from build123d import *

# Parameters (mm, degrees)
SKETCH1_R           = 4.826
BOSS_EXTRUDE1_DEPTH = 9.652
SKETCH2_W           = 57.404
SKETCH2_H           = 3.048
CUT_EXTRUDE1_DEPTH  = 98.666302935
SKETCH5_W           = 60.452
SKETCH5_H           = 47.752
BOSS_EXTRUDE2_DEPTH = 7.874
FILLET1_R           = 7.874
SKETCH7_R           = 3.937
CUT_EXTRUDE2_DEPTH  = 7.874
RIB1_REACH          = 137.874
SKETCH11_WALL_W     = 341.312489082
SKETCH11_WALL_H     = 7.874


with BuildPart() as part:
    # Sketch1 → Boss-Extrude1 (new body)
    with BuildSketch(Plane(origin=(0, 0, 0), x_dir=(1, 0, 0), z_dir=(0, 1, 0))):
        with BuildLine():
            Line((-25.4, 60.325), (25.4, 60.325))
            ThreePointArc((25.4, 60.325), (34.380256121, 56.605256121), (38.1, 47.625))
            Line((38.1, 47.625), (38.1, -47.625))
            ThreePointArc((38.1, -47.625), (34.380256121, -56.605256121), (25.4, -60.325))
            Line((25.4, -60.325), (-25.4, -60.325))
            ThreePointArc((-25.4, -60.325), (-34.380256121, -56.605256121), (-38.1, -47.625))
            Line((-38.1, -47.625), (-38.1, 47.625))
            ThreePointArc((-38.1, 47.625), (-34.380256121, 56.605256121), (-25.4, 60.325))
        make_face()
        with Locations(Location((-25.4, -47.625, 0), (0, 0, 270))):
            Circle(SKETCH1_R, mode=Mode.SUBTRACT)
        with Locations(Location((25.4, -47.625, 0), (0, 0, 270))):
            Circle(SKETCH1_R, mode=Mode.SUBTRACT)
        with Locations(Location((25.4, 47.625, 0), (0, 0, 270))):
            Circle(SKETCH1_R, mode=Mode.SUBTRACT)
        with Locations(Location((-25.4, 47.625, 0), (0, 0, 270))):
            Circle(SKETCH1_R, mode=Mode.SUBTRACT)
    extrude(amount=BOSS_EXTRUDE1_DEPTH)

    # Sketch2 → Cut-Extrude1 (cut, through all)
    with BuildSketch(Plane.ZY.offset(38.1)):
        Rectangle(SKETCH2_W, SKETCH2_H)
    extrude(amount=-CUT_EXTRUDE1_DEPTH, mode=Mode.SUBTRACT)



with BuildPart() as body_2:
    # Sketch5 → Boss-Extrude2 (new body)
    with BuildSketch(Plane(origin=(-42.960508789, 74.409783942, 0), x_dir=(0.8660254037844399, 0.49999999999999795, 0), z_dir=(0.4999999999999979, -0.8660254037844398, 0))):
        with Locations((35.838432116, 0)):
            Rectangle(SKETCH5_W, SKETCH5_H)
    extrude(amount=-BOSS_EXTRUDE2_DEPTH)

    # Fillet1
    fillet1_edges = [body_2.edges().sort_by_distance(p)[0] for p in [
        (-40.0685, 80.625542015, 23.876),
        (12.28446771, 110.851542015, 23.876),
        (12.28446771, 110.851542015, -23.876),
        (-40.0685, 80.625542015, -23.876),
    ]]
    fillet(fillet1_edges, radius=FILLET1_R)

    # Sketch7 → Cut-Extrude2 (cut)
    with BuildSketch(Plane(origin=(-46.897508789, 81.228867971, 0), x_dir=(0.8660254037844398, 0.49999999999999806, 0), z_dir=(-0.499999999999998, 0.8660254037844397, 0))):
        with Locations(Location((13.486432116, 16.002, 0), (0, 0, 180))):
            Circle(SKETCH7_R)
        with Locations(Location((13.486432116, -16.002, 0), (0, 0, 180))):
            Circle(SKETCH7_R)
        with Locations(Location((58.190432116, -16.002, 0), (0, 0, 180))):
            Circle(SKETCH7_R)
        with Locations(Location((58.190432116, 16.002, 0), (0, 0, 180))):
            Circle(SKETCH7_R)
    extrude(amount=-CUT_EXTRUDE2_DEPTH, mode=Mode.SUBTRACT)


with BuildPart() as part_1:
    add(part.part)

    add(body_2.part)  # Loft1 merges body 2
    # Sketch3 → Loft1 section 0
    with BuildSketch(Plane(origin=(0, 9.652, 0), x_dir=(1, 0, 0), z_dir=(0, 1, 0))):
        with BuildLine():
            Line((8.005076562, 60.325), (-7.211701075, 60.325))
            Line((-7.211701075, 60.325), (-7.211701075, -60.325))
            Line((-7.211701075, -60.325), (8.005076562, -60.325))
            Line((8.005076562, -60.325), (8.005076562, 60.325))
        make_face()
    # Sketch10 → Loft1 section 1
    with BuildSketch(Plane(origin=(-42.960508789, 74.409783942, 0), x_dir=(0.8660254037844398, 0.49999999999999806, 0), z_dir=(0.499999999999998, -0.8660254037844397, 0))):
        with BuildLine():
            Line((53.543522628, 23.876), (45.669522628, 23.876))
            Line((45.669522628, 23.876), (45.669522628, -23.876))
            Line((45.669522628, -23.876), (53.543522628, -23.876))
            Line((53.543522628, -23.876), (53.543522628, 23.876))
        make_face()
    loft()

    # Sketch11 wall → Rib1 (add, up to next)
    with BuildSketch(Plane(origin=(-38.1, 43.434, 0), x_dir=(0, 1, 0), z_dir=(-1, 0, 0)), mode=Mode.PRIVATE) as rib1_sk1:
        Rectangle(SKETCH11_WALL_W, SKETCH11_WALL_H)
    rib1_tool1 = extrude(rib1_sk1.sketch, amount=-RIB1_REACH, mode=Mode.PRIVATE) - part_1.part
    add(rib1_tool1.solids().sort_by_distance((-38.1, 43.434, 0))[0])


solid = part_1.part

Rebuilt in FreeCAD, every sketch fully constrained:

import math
import FreeCAD as App
import Part
import Sketcher
from FreeCAD import Vector
Q = App.Units.Quantity


def edges_at(feature, points):
    """Names of the edges that pass closest to the given points."""
    edges = feature.Shape.Edges
    near = lambda p: min(range(len(edges)), key=lambda i: edges[i].distToShape(Part.Vertex(*p))[0])
    return sorted({f"Edge{near(p) + 1}" for p in points})

doc = App.newDocument("Part")
body = doc.addObject("PartDesign::Body", "Body")

sketch1 = body.newObject("Sketcher::SketchObject", "Sketch")
sketch1.AttachmentSupport = (doc.getObject("XZ_Plane"), [""])
sketch1.MapMode = "FlatFace"
sketch1.addGeometry([
    Part.LineSegment(Vector(25.4, -60.3, 0), Vector(-25.4, -60.3, 0)),
    Part.ArcOfCircle(Part.Circle(Vector(-25.4, -47.6, 0), Vector(0, 0, 1), 12.7), math.radians(180), math.radians(270)),
    Part.LineSegment(Vector(-38.1, -47.6, 0), Vector(-38.1, 47.6, 0)),
    Part.ArcOfCircle(Part.Circle(Vector(-25.4, 47.6, 0), Vector(0, 0, 1), 12.7), math.radians(90), math.radians(180)),
    Part.LineSegment(Vector(-25.4, 60.3, 0), Vector(25.4, 60.3, 0)),
    Part.ArcOfCircle(Part.Circle(Vector(25.4, 47.6, 0), Vector(0, 0, 1), 12.7), math.radians(0), math.radians(90)),
    Part.LineSegment(Vector(38.1, 47.6, 0), Vector(38.1, -47.6, 0)),
    Part.ArcOfCircle(Part.Circle(Vector(25.4, -47.6, 0), Vector(0, 0, 1), 12.7), math.radians(-90), math.radians(0)),
    Part.Circle(Vector(25.4, 47.6, 0), Vector(0, 0, 1), 4.8),
    Part.Circle(Vector(-25.4, 47.6, 0), Vector(0, 0, 1), 4.8),
    Part.Circle(Vector(25.4, -47.6, 0), Vector(0, 0, 1), 4.8),
    Part.Circle(Vector(-25.4, -47.6, 0), Vector(0, 0, 1), 4.8),
], False)
sketch1.addConstraint([
    Sketcher.Constraint("Tangent", 0, 2, 1, 2),
    Sketcher.Constraint("Tangent", 1, 1, 2, 1),
    Sketcher.Constraint("Tangent", 2, 2, 3, 2),
    Sketcher.Constraint("Tangent", 3, 1, 4, 1),
    Sketcher.Constraint("Tangent", 4, 2, 5, 2),
    Sketcher.Constraint("Tangent", 5, 1, 6, 1),
    Sketcher.Constraint("Tangent", 6, 2, 7, 2),
    Sketcher.Constraint("Tangent", 7, 1, 0, 1),
    Sketcher.Constraint("Horizontal", 0),
    Sketcher.Constraint("Vertical", 2),
    Sketcher.Constraint("Horizontal", 4),
    Sketcher.Constraint("Vertical", 6),
    Sketcher.Constraint("Coincident", 8, 3, 5, 3),
    Sketcher.Constraint("Coincident", 9, 3, 3, 3),
    Sketcher.Constraint("Coincident", 10, 3, 7, 3),
    Sketcher.Constraint("Coincident", 11, 3, 1, 3),
    Sketcher.Constraint("Equal", 1, 3),
    Sketcher.Constraint("Equal", 3, 5),
    Sketcher.Constraint("Equal", 5, 7),
    Sketcher.Constraint("Equal", 8, 9),
    Sketcher.Constraint("Equal", 9, 10),
    Sketcher.Constraint("Equal", 10, 11),
    Sketcher.Constraint("Symmetric", 1, 3, 5, 3, -1, 1),
    Sketcher.Constraint("Radius", 1, Q("0.5 in")),
    Sketcher.Constraint("Diameter", 8, Q("0.38 in")),
    Sketcher.Constraint("DistanceX", 0, 2, 0, 1, Q("2 in")),
    Sketcher.Constraint("DistanceY", 2, 1, 2, 2, Q("3.75 in")),
])
pad1 = body.newObject("PartDesign::Pad", "Pad")
pad1.Profile = sketch1
pad1.Length = Q("0.38 in")
pad1.Reversed = True

sketch2 = body.newObject("Sketcher::SketchObject", "Sketch001")
sketch2.AttachmentSupport = (doc.getObject("YZ_Plane"), [""])
sketch2.MapMode = "FlatFace"
sketch2.AttachmentOffset = App.Placement(Vector(0, 0, -1.5 * 25.4), App.Rotation())
sketch2.addGeometry([
    Part.LineSegment(Vector(1.5, -28.7, 0), Vector(-1.5, -28.7, 0)),
    Part.LineSegment(Vector(-1.5, -28.7, 0), Vector(-1.5, 28.7, 0)),
    Part.LineSegment(Vector(-1.5, 28.7, 0), Vector(1.5, 28.7, 0)),
    Part.LineSegment(Vector(1.5, 28.7, 0), Vector(1.5, -28.7, 0)),
], False)
sketch2.addConstraint([
    Sketcher.Constraint("Coincident", 0, 2, 1, 1),
    Sketcher.Constraint("Coincident", 1, 2, 2, 1),
    Sketcher.Constraint("Coincident", 2, 2, 3, 1),
    Sketcher.Constraint("Coincident", 3, 2, 0, 1),
    Sketcher.Constraint("Horizontal", 0),
    Sketcher.Constraint("Vertical", 1),
    Sketcher.Constraint("Horizontal", 2),
    Sketcher.Constraint("Vertical", 3),
    Sketcher.Constraint("Symmetric", 0, 2, 2, 2, -1, 1),
    Sketcher.Constraint("DistanceX", 0, 2, 0, 1, Q("0.12 in")),
    Sketcher.Constraint("DistanceY", 1, 1, 1, 2, Q("2.26 in")),
])
pocket1 = body.newObject("PartDesign::Pocket", "Pocket")
pocket1.Profile = sketch2
pocket1.Type = "ThroughAll"
pocket1.Reversed = True
body2 = doc.addObject("PartDesign::Body", "Body001")

sketch3 = body2.newObject("Sketcher::SketchObject", "Sketch002")
sketch3.Placement = App.Placement(Vector(-42.960509, 74.409784, 0), App.Rotation(Vector(0.866025404, 0.5, 0), Vector(0, 0, 1), Vector(0.5, -0.866025404, 0), "ZXY"))
sketch3.addGeometry([
    Part.LineSegment(Vector(6, 24, 0), Vector(6, -24, 0)),
    Part.LineSegment(Vector(6, -24, 0), Vector(66, -24, 0)),
    Part.LineSegment(Vector(66, -24, 0), Vector(66, 24, 0)),
    Part.LineSegment(Vector(66, 24, 0), Vector(6, 24, 0)),
], False)
sketch3.addConstraint([
    Sketcher.Constraint("Coincident", 0, 2, 1, 1),
    Sketcher.Constraint("Coincident", 1, 2, 2, 1),
    Sketcher.Constraint("Coincident", 2, 2, 3, 1),
    Sketcher.Constraint("Coincident", 3, 2, 0, 1),
    Sketcher.Constraint("Vertical", 0),
    Sketcher.Constraint("Horizontal", 1),
    Sketcher.Constraint("Vertical", 2),
    Sketcher.Constraint("Horizontal", 3),
    Sketcher.Constraint("DistanceX", 1, 1, 1, 2, Q("2.38 in")),
    Sketcher.Constraint("DistanceY", 0, 2, 0, 1, Q("1.88 in")),
    Sketcher.Constraint("DistanceY", 0, 2, -1, 1, Q("0.94 in")),
    Sketcher.Constraint("DistanceX", -1, 1, 0, 2, 5.612432),
])
pad2 = body2.newObject("PartDesign::Pad", "Pad001")
pad2.Profile = sketch3
pad2.Length = Q("0.31 in")
pad2.Reversed = True
doc.recompute()

fillet = body2.newObject("PartDesign::Fillet", "Fillet")
fillet.Base = (pad2, edges_at(pad2, [
    (-40.069, 80.626, 23.876),
    (12.284, 110.852, 23.876),
    (12.284, 110.852, -23.876),
    (-40.069, 80.626, -23.876),
]))
fillet.Radius = Q("0.31 in")

sketch4 = body2.newObject("Sketcher::SketchObject", "Sketch003")
sketch4.Placement = App.Placement(Vector(-46.897509, 81.228868, 0), App.Rotation(Vector(0.866025404, 0.5, 0), Vector(0, 0, -1), Vector(-0.5, 0.866025404, 0), "ZXY"))
sketch4.addGeometry([
    Part.Circle(Vector(13.5, 16, 0), Vector(0, 0, 1), 3.9),
    Part.Circle(Vector(13.5, -16, 0), Vector(0, 0, 1), 3.9),
    Part.Circle(Vector(58.2, -16, 0), Vector(0, 0, 1), 3.9),
    Part.Circle(Vector(58.2, 16, 0), Vector(0, 0, 1), 3.9),
], False)
sketch4.addConstraint([
    Sketcher.Constraint("Equal", 0, 1),
    Sketcher.Constraint("Equal", 1, 2),
    Sketcher.Constraint("Equal", 2, 3),
    Sketcher.Constraint("Symmetric", 0, 3, 1, 3, -1),
    Sketcher.Constraint("Symmetric", 2, 3, 3, 3, -1),
    Sketcher.Constraint("Horizontal", 1, 3, 2, 3),
    Sketcher.Constraint("Diameter", 0, Q("0.31 in")),
    Sketcher.Constraint("DistanceY", -1, 1, 0, 3, Q("0.63 in")),
    Sketcher.Constraint("DistanceX", 1, 3, 2, 3, Q("1.76 in")),
    Sketcher.Constraint("DistanceX", -1, 1, 0, 3, 13.486432),
])
pocket2 = body2.newObject("PartDesign::Pocket", "Pocket001")
pocket2.Profile = sketch4
pocket2.Length = Q("0.31 in")
body.AllowCompound = True
doc.recompute()

boolean = body.newObject("PartDesign::Boolean", "Boolean")
boolean.Type = "Fuse"
boolean.addObjects([body2])

sketch5 = body.newObject("Sketcher::SketchObject", "Sketch004")
sketch5.AttachmentSupport = (doc.getObject("XZ_Plane"), [""])
sketch5.MapMode = "FlatFace"
sketch5.AttachmentOffset = App.Placement(Vector(0, 0, -0.38 * 25.4), App.Rotation())
sketch5.addGeometry([
    Part.LineSegment(Vector(8, -60, 0), Vector(-7, -60, 0)),
    Part.LineSegment(Vector(-7, -60, 0), Vector(-7, 60, 0)),
    Part.LineSegment(Vector(-7, 60, 0), Vector(8, 60, 0)),
    Part.LineSegment(Vector(8, 60, 0), Vector(8, -60, 0)),
], False)
sketch5.addConstraint([
    Sketcher.Constraint("Coincident", 0, 2, 1, 1),
    Sketcher.Constraint("Coincident", 1, 2, 2, 1),
    Sketcher.Constraint("Coincident", 2, 2, 3, 1),
    Sketcher.Constraint("Coincident", 3, 2, 0, 1),
    Sketcher.Constraint("Horizontal", 0),
    Sketcher.Constraint("Vertical", 1),
    Sketcher.Constraint("Horizontal", 2),
    Sketcher.Constraint("Vertical", 3),
    Sketcher.Constraint("DistanceY", 1, 1, 1, 2, Q("4.75 in")),
    Sketcher.Constraint("DistanceY", 0, 2, -1, 1, Q("2.375 in")),
    Sketcher.Constraint("DistanceX", 0, 2, -1, 1, 7.211701),
    Sketcher.Constraint("DistanceX", 0, 2, 0, 1, 15.216778),
])

sketch6 = body.newObject("Sketcher::SketchObject", "Sketch005")
sketch6.Placement = App.Placement(Vector(-42.960509, 74.409784, 0), App.Rotation(Vector(0.866025404, 0.5, 0), Vector(0, 0, 1), Vector(0.5, -0.866025404, 0), "ZXY"))
sketch6.addGeometry([
    Part.LineSegment(Vector(54, 24, 0), Vector(46, 24, 0)),
    Part.LineSegment(Vector(46, 24, 0), Vector(46, -24, 0)),
    Part.LineSegment(Vector(46, -24, 0), Vector(54, -24, 0)),
    Part.LineSegment(Vector(54, -24, 0), Vector(54, 24, 0)),
], False)
sketch6.addConstraint([
    Sketcher.Constraint("Coincident", 0, 2, 1, 1),
    Sketcher.Constraint("Coincident", 1, 2, 2, 1),
    Sketcher.Constraint("Coincident", 2, 2, 3, 1),
    Sketcher.Constraint("Coincident", 3, 2, 0, 1),
    Sketcher.Constraint("Horizontal", 0),
    Sketcher.Constraint("Vertical", 1),
    Sketcher.Constraint("Horizontal", 2),
    Sketcher.Constraint("Vertical", 3),
    Sketcher.Constraint("DistanceX", 0, 2, 0, 1, Q("0.31 in")),
    Sketcher.Constraint("DistanceY", 1, 2, 1, 1, Q("1.88 in")),
    Sketcher.Constraint("DistanceY", -1, 1, 0, 2, Q("0.94 in")),
    Sketcher.Constraint("DistanceX", -1, 1, 0, 2, 45.669523),
])

additiveloft = body.newObject("PartDesign::AdditiveLoft", "AdditiveLoft")
additiveloft.Profile = sketch5
additiveloft.Sections = [sketch6]

sketch7 = body.newObject("Sketcher::SketchObject", "Sketch006")
sketch7.AttachmentSupport = (doc.getObject("YZ_Plane"), [""])
sketch7.MapMode = "FlatFace"
sketch7.AttachmentOffset = App.Placement(Vector(0, 0, -1.5 * 25.4), App.Rotation())
sketch7.addGeometry([
    Part.LineSegment(Vector(-127, -4, 0), Vector(-127, 4, 0)),
    Part.LineSegment(Vector(-127, 4, 0), Vector(214, 4, 0)),
    Part.LineSegment(Vector(214, 4, 0), Vector(214, -4, 0)),
    Part.LineSegment(Vector(214, -4, 0), Vector(-127, -4, 0)),
], False)
sketch7.addConstraint([
    Sketcher.Constraint("Coincident", 0, 2, 1, 1),
    Sketcher.Constraint("Coincident", 1, 2, 2, 1),
    Sketcher.Constraint("Coincident", 2, 2, 3, 1),
    Sketcher.Constraint("Coincident", 3, 2, 0, 1),
    Sketcher.Constraint("Vertical", 0),
    Sketcher.Constraint("Horizontal", 1),
    Sketcher.Constraint("Vertical", 2),
    Sketcher.Constraint("Horizontal", 3),
    Sketcher.Constraint("DistanceY", 0, 1, 0, 2, Q("0.31 in")),
    Sketcher.Constraint("DistanceY", -1, 1, 0, 2, Q("0.155 in")),
    Sketcher.Constraint("DistanceX", 1, 1, 1, 2, 341.312489),
    Sketcher.Constraint("DistanceX", 0, 2, -1, 1, 127.222245),
])
pad3 = body.newObject("PartDesign::Pad", "Pad002")
pad3.Profile = sketch7
pad3.Type = "UpToFirst"

doc.recompute()
